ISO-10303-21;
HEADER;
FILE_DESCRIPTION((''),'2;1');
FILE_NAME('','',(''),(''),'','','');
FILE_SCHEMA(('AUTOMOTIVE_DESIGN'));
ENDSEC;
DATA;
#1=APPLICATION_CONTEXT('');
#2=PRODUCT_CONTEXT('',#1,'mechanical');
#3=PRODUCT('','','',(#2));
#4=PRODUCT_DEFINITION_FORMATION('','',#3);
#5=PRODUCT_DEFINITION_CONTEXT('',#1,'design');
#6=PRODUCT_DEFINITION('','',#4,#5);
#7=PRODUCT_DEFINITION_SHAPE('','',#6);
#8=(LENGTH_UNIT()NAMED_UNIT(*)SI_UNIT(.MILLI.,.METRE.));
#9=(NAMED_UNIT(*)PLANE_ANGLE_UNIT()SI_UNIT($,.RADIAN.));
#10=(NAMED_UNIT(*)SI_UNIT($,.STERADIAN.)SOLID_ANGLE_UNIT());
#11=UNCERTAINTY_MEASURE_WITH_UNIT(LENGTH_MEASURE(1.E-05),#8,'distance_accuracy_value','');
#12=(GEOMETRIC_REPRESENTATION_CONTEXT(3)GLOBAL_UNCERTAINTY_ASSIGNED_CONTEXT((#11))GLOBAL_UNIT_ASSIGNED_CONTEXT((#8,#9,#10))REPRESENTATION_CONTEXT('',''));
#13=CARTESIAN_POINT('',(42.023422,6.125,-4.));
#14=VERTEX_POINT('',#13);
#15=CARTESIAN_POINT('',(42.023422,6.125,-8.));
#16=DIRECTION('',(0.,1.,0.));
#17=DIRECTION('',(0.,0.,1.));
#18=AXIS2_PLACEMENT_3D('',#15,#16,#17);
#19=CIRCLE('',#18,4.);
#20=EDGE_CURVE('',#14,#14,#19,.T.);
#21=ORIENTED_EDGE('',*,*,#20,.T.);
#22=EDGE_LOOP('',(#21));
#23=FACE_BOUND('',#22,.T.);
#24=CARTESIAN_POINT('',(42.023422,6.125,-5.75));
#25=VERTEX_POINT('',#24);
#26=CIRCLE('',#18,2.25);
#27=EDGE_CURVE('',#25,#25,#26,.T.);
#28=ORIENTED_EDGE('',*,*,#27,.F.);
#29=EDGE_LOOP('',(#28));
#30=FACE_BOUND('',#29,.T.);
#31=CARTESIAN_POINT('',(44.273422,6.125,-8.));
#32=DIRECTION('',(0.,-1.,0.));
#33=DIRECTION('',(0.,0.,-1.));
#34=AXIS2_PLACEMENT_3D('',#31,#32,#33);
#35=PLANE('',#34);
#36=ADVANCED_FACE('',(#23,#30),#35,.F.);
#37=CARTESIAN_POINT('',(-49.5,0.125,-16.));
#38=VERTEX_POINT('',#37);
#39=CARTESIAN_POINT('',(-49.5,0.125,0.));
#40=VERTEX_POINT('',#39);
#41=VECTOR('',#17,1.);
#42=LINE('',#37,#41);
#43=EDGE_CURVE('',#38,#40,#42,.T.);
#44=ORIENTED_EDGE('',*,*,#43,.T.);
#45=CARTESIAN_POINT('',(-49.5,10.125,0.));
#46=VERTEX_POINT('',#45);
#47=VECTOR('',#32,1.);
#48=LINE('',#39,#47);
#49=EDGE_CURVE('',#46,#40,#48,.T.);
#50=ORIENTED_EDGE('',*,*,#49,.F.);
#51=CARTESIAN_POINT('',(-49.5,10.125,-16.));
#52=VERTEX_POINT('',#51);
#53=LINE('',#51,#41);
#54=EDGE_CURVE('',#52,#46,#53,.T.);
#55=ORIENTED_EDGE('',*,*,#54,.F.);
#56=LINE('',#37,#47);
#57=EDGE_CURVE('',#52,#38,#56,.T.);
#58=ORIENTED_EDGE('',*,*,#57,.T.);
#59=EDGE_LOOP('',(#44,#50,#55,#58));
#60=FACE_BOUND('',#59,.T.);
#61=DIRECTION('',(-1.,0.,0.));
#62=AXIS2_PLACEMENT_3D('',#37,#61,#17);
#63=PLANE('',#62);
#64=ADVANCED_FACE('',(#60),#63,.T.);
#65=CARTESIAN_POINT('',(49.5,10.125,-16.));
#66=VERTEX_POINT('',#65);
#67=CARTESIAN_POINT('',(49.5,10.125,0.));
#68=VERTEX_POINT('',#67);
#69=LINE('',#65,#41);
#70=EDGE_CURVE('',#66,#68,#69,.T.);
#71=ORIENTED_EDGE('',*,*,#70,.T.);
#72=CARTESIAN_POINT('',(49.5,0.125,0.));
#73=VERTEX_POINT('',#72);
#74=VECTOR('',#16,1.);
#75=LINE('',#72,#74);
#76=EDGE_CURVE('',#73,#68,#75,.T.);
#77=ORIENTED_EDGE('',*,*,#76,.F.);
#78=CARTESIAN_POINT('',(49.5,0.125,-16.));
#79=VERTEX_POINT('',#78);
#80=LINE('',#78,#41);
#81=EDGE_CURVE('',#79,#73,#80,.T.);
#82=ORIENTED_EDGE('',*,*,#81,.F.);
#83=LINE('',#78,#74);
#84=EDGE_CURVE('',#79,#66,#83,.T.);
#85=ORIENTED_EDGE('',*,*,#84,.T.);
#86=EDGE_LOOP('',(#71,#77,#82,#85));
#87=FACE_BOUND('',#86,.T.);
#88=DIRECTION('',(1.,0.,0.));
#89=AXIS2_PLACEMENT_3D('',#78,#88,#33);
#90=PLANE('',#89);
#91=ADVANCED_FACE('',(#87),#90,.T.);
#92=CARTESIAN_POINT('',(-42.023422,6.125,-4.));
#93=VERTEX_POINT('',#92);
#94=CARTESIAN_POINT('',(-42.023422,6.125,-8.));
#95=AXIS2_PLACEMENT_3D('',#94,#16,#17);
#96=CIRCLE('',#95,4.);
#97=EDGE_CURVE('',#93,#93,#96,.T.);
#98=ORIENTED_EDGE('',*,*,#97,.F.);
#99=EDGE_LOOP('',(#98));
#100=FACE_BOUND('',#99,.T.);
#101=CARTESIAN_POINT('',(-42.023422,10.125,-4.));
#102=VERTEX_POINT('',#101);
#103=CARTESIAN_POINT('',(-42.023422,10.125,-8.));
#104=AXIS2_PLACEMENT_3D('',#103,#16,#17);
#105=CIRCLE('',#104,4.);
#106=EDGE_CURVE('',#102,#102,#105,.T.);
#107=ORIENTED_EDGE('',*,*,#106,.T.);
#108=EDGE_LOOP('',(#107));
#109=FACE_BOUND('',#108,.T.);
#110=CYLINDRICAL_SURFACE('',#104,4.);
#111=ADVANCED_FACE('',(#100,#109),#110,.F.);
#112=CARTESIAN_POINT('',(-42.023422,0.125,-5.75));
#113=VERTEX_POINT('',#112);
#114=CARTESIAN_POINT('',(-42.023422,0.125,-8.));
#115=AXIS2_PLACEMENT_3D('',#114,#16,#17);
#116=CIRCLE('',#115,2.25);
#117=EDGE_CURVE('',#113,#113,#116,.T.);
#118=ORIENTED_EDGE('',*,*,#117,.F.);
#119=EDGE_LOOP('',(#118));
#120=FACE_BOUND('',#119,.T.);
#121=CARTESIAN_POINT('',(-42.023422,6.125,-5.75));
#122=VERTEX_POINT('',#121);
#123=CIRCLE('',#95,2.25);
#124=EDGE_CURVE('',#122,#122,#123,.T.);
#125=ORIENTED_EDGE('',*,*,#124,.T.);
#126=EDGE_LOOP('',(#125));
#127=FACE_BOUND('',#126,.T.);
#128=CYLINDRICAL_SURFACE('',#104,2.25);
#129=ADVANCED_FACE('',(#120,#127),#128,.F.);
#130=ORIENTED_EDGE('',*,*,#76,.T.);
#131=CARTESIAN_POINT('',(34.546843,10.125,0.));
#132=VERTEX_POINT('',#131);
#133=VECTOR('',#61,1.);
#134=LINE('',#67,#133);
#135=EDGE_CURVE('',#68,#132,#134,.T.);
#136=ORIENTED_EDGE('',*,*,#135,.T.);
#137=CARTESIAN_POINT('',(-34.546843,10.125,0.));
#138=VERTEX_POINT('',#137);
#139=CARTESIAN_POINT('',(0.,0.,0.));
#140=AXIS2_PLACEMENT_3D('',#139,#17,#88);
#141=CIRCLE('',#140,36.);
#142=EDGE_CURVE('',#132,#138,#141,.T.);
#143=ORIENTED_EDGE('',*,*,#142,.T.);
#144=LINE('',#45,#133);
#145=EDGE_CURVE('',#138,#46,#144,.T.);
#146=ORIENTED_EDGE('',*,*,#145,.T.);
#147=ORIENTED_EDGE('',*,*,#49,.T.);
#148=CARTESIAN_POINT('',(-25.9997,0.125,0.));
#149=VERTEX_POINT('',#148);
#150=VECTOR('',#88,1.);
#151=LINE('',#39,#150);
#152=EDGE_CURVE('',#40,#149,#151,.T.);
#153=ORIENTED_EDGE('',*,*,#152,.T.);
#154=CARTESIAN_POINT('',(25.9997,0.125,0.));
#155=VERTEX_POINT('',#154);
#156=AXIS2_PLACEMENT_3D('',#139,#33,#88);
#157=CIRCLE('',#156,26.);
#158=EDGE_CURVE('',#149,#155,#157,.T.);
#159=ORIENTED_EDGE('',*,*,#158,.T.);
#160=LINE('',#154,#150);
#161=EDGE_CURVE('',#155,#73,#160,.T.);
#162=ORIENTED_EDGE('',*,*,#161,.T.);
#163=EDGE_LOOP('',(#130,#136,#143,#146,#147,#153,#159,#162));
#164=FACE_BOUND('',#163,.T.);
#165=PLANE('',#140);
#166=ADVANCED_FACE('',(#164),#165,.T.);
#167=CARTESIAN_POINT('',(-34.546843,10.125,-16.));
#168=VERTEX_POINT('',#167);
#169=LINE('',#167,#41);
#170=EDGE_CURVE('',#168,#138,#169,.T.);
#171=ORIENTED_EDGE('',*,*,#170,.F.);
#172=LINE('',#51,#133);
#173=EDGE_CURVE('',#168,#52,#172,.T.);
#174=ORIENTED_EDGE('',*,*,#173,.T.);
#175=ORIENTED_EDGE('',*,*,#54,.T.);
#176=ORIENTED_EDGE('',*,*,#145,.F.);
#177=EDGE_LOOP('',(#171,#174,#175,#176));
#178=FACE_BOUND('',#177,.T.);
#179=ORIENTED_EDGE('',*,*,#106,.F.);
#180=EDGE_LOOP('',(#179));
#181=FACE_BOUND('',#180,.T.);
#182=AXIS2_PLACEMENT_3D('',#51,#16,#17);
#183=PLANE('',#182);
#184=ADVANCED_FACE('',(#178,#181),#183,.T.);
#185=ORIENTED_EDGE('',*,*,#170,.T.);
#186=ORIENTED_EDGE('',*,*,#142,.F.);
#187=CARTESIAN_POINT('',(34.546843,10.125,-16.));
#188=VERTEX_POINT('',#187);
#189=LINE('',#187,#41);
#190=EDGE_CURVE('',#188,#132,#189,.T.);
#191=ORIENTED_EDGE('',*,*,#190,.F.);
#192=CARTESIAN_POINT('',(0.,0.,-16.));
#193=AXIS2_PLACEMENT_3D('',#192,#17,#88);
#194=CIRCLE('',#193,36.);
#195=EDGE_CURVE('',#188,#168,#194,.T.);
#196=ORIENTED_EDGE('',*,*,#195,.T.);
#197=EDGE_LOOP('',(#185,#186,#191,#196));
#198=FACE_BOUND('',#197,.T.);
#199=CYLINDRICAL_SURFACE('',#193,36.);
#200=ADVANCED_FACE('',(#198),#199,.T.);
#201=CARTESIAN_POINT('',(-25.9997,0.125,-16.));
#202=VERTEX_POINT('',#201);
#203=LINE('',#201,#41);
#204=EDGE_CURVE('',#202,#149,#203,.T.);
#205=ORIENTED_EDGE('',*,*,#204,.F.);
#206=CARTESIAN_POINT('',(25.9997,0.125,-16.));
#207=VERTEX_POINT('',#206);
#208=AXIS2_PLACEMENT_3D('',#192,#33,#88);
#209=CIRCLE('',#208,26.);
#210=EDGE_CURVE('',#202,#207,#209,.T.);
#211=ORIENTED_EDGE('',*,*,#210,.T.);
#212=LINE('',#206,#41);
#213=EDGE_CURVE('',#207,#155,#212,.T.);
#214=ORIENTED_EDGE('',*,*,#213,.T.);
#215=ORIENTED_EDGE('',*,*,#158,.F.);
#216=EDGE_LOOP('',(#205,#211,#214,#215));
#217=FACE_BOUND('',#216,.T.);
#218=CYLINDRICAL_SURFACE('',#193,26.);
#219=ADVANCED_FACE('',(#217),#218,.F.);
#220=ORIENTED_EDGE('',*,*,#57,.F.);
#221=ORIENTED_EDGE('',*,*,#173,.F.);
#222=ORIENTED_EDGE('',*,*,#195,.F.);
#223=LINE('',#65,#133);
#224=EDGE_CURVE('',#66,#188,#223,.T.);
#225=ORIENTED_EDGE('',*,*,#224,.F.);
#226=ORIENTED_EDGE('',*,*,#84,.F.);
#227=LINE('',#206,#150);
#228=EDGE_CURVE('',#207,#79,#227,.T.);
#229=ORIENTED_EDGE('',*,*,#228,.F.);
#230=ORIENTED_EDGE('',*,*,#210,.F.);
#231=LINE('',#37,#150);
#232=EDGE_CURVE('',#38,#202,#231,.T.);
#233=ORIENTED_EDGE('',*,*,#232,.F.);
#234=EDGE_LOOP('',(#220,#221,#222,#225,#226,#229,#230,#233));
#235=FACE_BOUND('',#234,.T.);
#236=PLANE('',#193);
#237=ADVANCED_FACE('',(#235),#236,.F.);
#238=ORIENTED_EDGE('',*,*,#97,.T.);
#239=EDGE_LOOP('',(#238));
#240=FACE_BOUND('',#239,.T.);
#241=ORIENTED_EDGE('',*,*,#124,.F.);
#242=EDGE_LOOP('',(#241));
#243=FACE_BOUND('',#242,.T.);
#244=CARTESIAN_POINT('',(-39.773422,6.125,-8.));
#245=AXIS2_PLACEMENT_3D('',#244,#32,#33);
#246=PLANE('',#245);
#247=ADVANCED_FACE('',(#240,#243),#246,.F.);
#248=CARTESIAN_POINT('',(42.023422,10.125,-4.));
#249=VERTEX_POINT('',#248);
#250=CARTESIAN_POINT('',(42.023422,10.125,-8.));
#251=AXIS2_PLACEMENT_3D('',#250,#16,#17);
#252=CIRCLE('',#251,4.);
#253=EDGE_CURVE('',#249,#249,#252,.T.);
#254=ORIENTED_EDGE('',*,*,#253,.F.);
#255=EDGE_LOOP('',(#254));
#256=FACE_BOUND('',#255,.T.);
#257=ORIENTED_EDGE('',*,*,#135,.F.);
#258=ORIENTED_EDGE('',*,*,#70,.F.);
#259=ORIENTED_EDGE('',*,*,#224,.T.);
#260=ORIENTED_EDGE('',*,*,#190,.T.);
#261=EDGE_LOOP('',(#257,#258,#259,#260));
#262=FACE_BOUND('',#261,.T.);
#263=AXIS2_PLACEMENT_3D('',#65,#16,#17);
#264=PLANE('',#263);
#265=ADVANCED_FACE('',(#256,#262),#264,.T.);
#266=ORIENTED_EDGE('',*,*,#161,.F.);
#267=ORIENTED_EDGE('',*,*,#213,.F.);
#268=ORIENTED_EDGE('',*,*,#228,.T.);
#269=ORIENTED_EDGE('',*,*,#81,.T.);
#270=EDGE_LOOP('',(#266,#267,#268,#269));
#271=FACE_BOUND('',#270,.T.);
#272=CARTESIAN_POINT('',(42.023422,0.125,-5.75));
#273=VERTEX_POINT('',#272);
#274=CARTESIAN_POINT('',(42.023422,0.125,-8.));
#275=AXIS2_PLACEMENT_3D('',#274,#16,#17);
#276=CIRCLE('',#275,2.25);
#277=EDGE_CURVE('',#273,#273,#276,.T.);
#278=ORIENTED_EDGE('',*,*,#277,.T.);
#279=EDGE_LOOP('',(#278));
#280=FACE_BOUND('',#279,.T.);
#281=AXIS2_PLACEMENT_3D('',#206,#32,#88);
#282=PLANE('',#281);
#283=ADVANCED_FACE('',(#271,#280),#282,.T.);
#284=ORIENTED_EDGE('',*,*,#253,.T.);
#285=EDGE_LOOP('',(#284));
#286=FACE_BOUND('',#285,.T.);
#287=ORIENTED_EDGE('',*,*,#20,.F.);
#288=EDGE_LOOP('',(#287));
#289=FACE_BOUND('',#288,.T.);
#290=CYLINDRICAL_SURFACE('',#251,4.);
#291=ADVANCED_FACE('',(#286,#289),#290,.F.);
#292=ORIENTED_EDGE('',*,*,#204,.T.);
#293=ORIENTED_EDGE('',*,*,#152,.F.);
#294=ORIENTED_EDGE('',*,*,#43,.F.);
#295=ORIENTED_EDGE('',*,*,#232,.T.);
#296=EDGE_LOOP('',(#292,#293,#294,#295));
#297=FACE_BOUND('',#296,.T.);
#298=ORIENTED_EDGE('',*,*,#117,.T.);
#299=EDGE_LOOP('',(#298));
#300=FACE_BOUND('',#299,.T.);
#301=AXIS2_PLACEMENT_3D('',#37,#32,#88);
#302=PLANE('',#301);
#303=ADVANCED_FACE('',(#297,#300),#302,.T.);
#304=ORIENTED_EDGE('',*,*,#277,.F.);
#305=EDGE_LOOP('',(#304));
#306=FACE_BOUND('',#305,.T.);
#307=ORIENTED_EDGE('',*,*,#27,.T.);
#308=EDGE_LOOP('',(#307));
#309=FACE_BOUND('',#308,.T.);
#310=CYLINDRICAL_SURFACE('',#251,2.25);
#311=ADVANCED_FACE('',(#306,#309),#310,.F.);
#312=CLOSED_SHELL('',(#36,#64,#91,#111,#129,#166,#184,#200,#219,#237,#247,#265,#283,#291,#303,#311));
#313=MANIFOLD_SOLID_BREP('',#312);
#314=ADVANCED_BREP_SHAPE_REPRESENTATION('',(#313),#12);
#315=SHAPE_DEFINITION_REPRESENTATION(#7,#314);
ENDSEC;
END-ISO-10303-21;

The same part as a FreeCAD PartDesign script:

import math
import FreeCAD as App
import Part
import Sketcher
Q = App.Units.Quantity

doc = App.newDocument("Part")
body = doc.addObject("PartDesign::Body", "Body")

sketch1 = body.newObject("Sketcher::SketchObject", "Sketch")
sketch1.AttachmentSupport = (doc.getObject("XY_Plane"), [""])
sketch1.MapMode = "FlatFace"
sketch1.addGeometry([
    Part.LineSegment(App.Vector(-50, 0, 0), App.Vector(-26, 0, 0)),
    Part.ArcOfCircle(Part.Circle(App.Vector(0, 0, 0), App.Vector(0, 0, 1), 26), math.radians(0), math.radians(180)),
    Part.LineSegment(App.Vector(26, 0, 0), App.Vector(50, 0, 0)),
    Part.LineSegment(App.Vector(50, 0, 0), App.Vector(50, 10, 0)),
    Part.LineSegment(App.Vector(50, 10, 0), App.Vector(35, 10, 0)),
    Part.ArcOfCircle(Part.Circle(App.Vector(0, 0, 0), App.Vector(0, 0, 1), 36), math.radians(16), math.radians(164)),
    Part.LineSegment(App.Vector(-35, 10, 0), App.Vector(-50, 10, 0)),
    Part.LineSegment(App.Vector(-50, 10, 0), App.Vector(-50, 0, 0)),
], False)
sketch1.addConstraint([
    Sketcher.Constraint("Coincident", 0, 2, 1, 2),
    Sketcher.Constraint("Coincident", 1, 1, 2, 1),
    Sketcher.Constraint("Coincident", 2, 2, 3, 1),
    Sketcher.Constraint("Coincident", 3, 2, 4, 1),
    Sketcher.Constraint("Coincident", 4, 2, 5, 1),
    Sketcher.Constraint("Coincident", 5, 2, 6, 1),
    Sketcher.Constraint("Coincident", 6, 2, 7, 1),
    Sketcher.Constraint("Coincident", 7, 2, 0, 1),
    Sketcher.Constraint("Horizontal", 0),
    Sketcher.Constraint("Horizontal", 2),
    Sketcher.Constraint("Vertical", 3),
    Sketcher.Constraint("Horizontal", 4),
    Sketcher.Constraint("Horizontal", 6),
    Sketcher.Constraint("Vertical", 7),
    Sketcher.Constraint("Coincident", 1, 3, -1, 1),
    Sketcher.Constraint("Coincident", 5, 3, -1, 1),
    Sketcher.Constraint("Symmetric", 3, 2, 6, 2, -2),
    Sketcher.Constraint("Horizontal", 0, 2, 1, 1),
    Sketcher.Constraint("Radius", 1, Q("26 mm")),
    Sketcher.Constraint("Radius", 5, Q("36 mm")),
    Sketcher.Constraint("DistanceY", 3, 1, 3, 2, Q("10 mm")),
    Sketcher.Constraint("DistanceX", -1, 1, 2, 2, Q("49.5 mm")),
    Sketcher.Constraint("DistanceY", -1, 1, 0, 2, Q("0.125 mm")),
])
pad1 = body.newObject("PartDesign::Pad", "Pad")
pad1.Profile = sketch1
pad1.Length = 16
pad1.Reversed = True

sketch2 = body.newObject("Sketcher::SketchObject", "Sketch001")
sketch2.AttachmentSupport = (doc.getObject("XZ_Plane"), [""])
sketch2.MapMode = "FlatFace"
sketch2.AttachmentOffset = App.Placement(App.Vector(0, 0, -10.125), App.Rotation())
sketch2.addGeometry([
    Part.Circle(App.Vector(-42, -8, 0), App.Vector(0, 0, 1), 2.2),
    Part.Circle(App.Vector(42, -8, 0), App.Vector(0, 0, 1), 2.2),
], False)
sketch2.addConstraint([
    Sketcher.Constraint("Equal", 0, 1),
    Sketcher.Constraint("Symmetric", 0, 3, 1, 3, -2),
    Sketcher.Constraint("Diameter", 0, Q("4.5 mm")),
    Sketcher.Constraint("DistanceY", 0, 3, -1, 1, Q("8 mm")),
    Sketcher.Constraint("DistanceX", 0, 3, -1, 1, Q("42.023422 mm")),
])
doc.recompute()
hole = body.newObject("PartDesign::Hole", "Hole")
hole.Profile = sketch2
hole.ThreadType = "None"
hole.Diameter = 4.5
hole.DepthType = "ThroughAll"
hole.HoleCutType = "Counterbore"
hole.HoleCutDiameter = 8
hole.HoleCutDepth = 4
hole.Reversed = True

doc.recompute()
